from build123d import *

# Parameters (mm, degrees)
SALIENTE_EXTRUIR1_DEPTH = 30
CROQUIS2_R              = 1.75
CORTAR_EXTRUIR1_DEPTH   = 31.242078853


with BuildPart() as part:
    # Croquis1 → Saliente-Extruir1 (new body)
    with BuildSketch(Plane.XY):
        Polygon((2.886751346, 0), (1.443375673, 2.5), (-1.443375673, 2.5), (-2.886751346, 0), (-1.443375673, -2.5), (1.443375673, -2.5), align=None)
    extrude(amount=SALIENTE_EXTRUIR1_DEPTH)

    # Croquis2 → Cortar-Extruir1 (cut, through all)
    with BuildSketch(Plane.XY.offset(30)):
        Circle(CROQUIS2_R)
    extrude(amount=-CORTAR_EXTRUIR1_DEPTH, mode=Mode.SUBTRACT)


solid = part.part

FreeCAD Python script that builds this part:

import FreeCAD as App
import Part
import Sketcher
Q = App.Units.Quantity


def add_polygon(sketch, points):
    """Adds a closed chain of lines whose ends are joined by coincident constraints."""
    first, n = sketch.GeometryCount, len(points)
    for a, b in zip(points, points[1:] + points[:1]):
        sketch.addGeometry(Part.LineSegment(App.Vector(*a, 0), App.Vector(*b, 0)), False)
    for i in range(n):
        sketch.addConstraint(Sketcher.Constraint("Coincident", first + i, 2, first + (i + 1) % n, 1))

doc = App.newDocument("Part")
body = doc.addObject("PartDesign::Body", "Body")

sketch1 = body.newObject("Sketcher::SketchObject", "Sketch")
sketch1.AttachmentSupport = (doc.getObject("XY_Plane"), [""])
sketch1.MapMode = "FlatFace"
add_polygon(sketch1, [(2.9, 0), (1.4, 2.5), (-1.4, 2.5), (-2.9, 0), (-1.4, -2.5), (1.4, -2.5)])
sketch1.addConstraint([
    Sketcher.Constraint("Horizontal", 1),
    Sketcher.Constraint("Horizontal", 4),
    Sketcher.Constraint("Symmetric", 0, 2, 3, 2, -1, 1),
    Sketcher.Constraint("Symmetric", 2, 2, 5, 2, -1, 1),
    Sketcher.Constraint("PointOnObject", 2, 2, -1),
    Sketcher.Constraint("Parallel", 2, 5),
    Sketcher.Constraint("Vertical", 1, 2, 3, 2),
    Sketcher.Constraint("Angle", 0, Q("120 deg")),
    Sketcher.Constraint("DistanceY", 3, 2, 1, 2, 5.0),
    Sketcher.Constraint("DistanceX", 1, 2, 1, 1, 2.886751),
])
pad1 = body.newObject("PartDesign::Pad", "Pad")
pad1.Profile = sketch1
pad1.Length = 30

sketch2 = body.newObject("Sketcher::SketchObject", "Sketch001")
sketch2.AttachmentSupport = (doc.getObject("XY_Plane"), [""])
sketch2.MapMode = "FlatFace"
sketch2.AttachmentOffset = App.Placement(App.Vector(0, 0, 30), App.Rotation())
sketch2.addGeometry(Part.Circle(App.Vector(0, 0, 0), App.Vector(0, 0, 1), 1.8), False)
sketch2.addConstraint([
    Sketcher.Constraint("Coincident", 0, 3, -1, 1),
    Sketcher.Constraint("Diameter", 0, 3.5),
])
pocket1 = body.newObject("PartDesign::Pocket", "Pocket")
pocket1.Profile = sketch2
pocket1.Type = "ThroughAll"

doc.recompute()
